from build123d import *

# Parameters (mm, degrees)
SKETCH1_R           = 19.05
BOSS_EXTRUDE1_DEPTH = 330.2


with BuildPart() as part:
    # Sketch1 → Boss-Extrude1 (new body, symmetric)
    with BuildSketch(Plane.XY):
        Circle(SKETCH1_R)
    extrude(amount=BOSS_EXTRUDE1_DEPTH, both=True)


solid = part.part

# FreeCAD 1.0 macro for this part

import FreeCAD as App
import Part
import Sketcher

V = App.Vector
Q = App.Units.Quantity

doc = App.newDocument("Part")
body = doc.addObject("PartDesign::Body", "Body")

sketch1 = doc.addObject("Sketcher::SketchObject", "Sketch")
body.addObject(sketch1)
sketch1.AttachmentSupport = (doc.XY_Plane, [""])
sketch1.MapMode = "FlatFace"
sketch1.addGeometry(Part.Circle(V(0, 0, 0), V(0, 0, 1), 19), False)
sketch1.addConstraint(Sketcher.Constraint("Coincident", 0, 3, -1, 1))
sketch1.addConstraint(Sketcher.Constraint("Diameter", 0, Q("1.5 in")))
pad1 = doc.addObject("PartDesign::Pad", "Pad")
body.addObject(pad1)
pad1.Profile = sketch1
pad1.Length = Q("26 in")
pad1.Midplane = True

doc.recompute()
